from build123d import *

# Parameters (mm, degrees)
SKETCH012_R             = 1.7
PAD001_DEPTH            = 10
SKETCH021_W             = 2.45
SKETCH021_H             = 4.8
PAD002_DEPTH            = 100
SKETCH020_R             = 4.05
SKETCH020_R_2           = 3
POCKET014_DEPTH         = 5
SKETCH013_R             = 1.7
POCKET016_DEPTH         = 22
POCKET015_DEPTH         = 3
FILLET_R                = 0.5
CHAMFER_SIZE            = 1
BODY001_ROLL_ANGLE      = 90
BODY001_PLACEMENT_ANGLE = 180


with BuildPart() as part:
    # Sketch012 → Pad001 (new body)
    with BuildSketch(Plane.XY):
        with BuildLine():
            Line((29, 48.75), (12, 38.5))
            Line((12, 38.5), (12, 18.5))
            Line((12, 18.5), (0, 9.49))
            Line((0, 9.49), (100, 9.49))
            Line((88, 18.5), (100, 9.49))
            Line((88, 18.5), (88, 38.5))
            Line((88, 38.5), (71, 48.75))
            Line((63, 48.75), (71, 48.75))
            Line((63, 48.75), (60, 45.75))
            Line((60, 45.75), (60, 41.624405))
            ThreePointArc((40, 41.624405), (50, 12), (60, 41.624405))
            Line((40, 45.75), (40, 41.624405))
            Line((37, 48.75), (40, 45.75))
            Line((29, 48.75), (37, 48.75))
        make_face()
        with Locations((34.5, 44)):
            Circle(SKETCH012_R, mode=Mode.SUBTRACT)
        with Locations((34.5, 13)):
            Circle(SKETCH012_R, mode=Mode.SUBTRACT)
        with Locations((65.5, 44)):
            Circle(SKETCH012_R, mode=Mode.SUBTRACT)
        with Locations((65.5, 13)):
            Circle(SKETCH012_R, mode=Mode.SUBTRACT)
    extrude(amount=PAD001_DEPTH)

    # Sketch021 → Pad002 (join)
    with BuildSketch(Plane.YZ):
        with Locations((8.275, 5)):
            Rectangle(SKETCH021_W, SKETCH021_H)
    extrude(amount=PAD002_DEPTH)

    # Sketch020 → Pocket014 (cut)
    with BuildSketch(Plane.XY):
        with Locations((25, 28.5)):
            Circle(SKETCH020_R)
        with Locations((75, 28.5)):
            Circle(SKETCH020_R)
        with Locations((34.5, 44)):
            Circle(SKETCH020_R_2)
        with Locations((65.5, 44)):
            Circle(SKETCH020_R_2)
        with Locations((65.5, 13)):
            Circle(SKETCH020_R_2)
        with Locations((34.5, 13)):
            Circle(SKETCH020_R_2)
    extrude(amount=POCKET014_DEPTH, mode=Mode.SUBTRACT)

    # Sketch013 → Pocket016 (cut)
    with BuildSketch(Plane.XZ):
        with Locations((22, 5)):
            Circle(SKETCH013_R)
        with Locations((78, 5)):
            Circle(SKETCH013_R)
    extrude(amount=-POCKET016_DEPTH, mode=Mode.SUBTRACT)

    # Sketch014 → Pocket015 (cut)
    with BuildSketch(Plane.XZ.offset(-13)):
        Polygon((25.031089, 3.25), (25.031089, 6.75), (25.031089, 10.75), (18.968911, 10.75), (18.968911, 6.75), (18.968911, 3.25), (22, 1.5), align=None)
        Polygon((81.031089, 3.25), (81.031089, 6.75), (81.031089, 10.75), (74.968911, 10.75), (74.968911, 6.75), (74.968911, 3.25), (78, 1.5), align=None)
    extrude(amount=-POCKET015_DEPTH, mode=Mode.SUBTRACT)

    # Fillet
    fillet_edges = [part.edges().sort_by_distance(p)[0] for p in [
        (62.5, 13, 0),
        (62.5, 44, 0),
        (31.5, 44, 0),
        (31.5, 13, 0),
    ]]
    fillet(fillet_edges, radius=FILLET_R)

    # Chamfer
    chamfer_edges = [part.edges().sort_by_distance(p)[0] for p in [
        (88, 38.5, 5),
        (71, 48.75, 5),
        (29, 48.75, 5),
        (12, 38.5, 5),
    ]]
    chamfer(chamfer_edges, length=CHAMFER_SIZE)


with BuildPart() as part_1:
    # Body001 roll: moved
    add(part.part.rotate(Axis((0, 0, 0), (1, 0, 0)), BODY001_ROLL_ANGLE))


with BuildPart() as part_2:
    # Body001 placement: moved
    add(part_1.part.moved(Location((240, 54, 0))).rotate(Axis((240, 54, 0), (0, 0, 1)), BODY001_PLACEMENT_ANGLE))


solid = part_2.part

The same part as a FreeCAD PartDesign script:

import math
import FreeCAD as App
import Part
import Sketcher
from FreeCAD import Vector
Q = App.Units.Quantity


def edges_at(feature, points):
    """Names of the edges that pass closest to the given points."""
    edges = feature.Shape.Edges
    near = lambda p: min(range(len(edges)), key=lambda i: edges[i].distToShape(Part.Vertex(*p))[0])
    return sorted({f"Edge{near(p) + 1}" for p in points})

doc = App.newDocument("Part")
body = doc.addObject("PartDesign::Body", "Body")

# Sketch on XY plane
sketch1 = body.newObject("Sketcher::SketchObject", "Sketch")
sketch1.AttachmentSupport = (doc.getObject("XY_Plane"), [""])
sketch1.MapMode = "FlatFace"
sketch1.addGeometry(Part.LineSegment(Vector(29, 48.8, 0), Vector(12, 38.5, 0)), False)
sketch1.addGeometry(Part.LineSegment(Vector(12, 38.5, 0), Vector(12, 18.5, 0)), False)
sketch1.addGeometry(Part.LineSegment(Vector(12, 18.5, 0), Vector(0, 9.5, 0)), False)
sketch1.addGeometry(Part.LineSegment(Vector(0, 9.5, 0), Vector(100, 9.5, 0)), False)
sketch1.addGeometry(Part.LineSegment(Vector(100, 9.5, 0), Vector(88, 18.5, 0)), False)
sketch1.addGeometry(Part.LineSegment(Vector(88, 18.5, 0), Vector(88, 38.5, 0)), False)
sketch1.addGeometry(Part.LineSegment(Vector(88, 38.5, 0), Vector(71, 48.8, 0)), False)
sketch1.addGeometry(Part.LineSegment(Vector(71, 48.8, 0), Vector(63, 48.8, 0)), False)
sketch1.addGeometry(Part.LineSegment(Vector(63, 48.8, 0), Vector(60, 45.8, 0)), False)
sketch1.addGeometry(Part.LineSegment(Vector(60, 45.8, 0), Vector(60, 41.6, 0)), False)
sketch1.addGeometry(Part.ArcOfCircle(Part.Circle(Vector(50, 28.5, 0), Vector(0, 0, 1), 16.5), math.radians(127), math.radians(413)), False)
sketch1.addGeometry(Part.LineSegment(Vector(40, 41.6, 0), Vector(40, 45.8, 0)), False)
sketch1.addGeometry(Part.LineSegment(Vector(40, 45.8, 0), Vector(37, 48.8, 0)), False)
sketch1.addGeometry(Part.LineSegment(Vector(37, 48.8, 0), Vector(29, 48.8, 0)), False)
sketch1.addGeometry(Part.Circle(Vector(34.5, 13, 0), Vector(0, 0, 1), 1.7), False)
sketch1.addGeometry(Part.Circle(Vector(65.5, 13, 0), Vector(0, 0, 1), 1.7), False)
sketch1.addGeometry(Part.Circle(Vector(34.5, 44, 0), Vector(0, 0, 1), 1.7), False)
sketch1.addGeometry(Part.Circle(Vector(65.5, 44, 0), Vector(0, 0, 1), 1.7), False)
sketch1.addConstraint(Sketcher.Constraint("Coincident", 0, 2, 1, 1))
sketch1.addConstraint(Sketcher.Constraint("Coincident", 1, 2, 2, 1))
sketch1.addConstraint(Sketcher.Constraint("Coincident", 2, 2, 3, 1))
sketch1.addConstraint(Sketcher.Constraint("Coincident", 3, 2, 4, 1))
sketch1.addConstraint(Sketcher.Constraint("Coincident", 4, 2, 5, 1))
sketch1.addConstraint(Sketcher.Constraint("Coincident", 5, 2, 6, 1))
sketch1.addConstraint(Sketcher.Constraint("Coincident", 6, 2, 7, 1))
sketch1.addConstraint(Sketcher.Constraint("Coincident", 7, 2, 8, 1))
sketch1.addConstraint(Sketcher.Constraint("Coincident", 8, 2, 9, 1))
sketch1.addConstraint(Sketcher.Constraint("Coincident", 9, 2, 10, 2))
sketch1.addConstraint(Sketcher.Constraint("Coincident", 10, 1, 11, 1))
sketch1.addConstraint(Sketcher.Constraint("Coincident", 11, 2, 12, 1))
sketch1.addConstraint(Sketcher.Constraint("Coincident", 12, 2, 13, 1))
sketch1.addConstraint(Sketcher.Constraint("Coincident", 13, 2, 0, 1))
sketch1.addConstraint(Sketcher.Constraint("Vertical", 1))
sketch1.addConstraint(Sketcher.Constraint("Horizontal", 3))
sketch1.addConstraint(Sketcher.Constraint("Vertical", 5))
sketch1.addConstraint(Sketcher.Constraint("Horizontal", 7))
sketch1.addConstraint(Sketcher.Constraint("Vertical", 9))
sketch1.addConstraint(Sketcher.Constraint("Vertical", 11))
sketch1.addConstraint(Sketcher.Constraint("Horizontal", 13))
sketch1.addConstraint(Sketcher.Constraint("Equal", 14, 15))
sketch1.addConstraint(Sketcher.Constraint("Equal", 15, 16))
sketch1.addConstraint(Sketcher.Constraint("Equal", 16, 17))
sketch1.addConstraint(Sketcher.Constraint("PointOnObject", 2, 2, -2))
sketch1.addConstraint(Sketcher.Constraint("Perpendicular", 8, 12))
sketch1.addConstraint(Sketcher.Constraint("Horizontal", 14, 3, 15, 3))
sketch1.addConstraint(Sketcher.Constraint("Horizontal", 16, 3, 17, 3))
sketch1.addConstraint(Sketcher.Constraint("Horizontal", 1, 2, 4, 2))
sketch1.addConstraint(Sketcher.Constraint("Horizontal", 0, 2, 5, 2))
sketch1.addConstraint(Sketcher.Constraint("Horizontal", 9, 2, 10, 1))
sketch1.addConstraint(Sketcher.Constraint("Horizontal", 8, 2, 11, 2))
sketch1.addConstraint(Sketcher.Constraint("Horizontal", 7, 2, 12, 2))
sketch1.addConstraint(Sketcher.Constraint("Vertical", 14, 3, 16, 3))
sketch1.addConstraint(Sketcher.Constraint("Vertical", 15, 3, 17, 3))
sketch1.addConstraint(Sketcher.Constraint("Equal", 7, 13))
sketch1.addConstraint(Sketcher.Constraint("Equal", 2, 4))
sketch1.addConstraint(Sketcher.Constraint("Equal", 0, 6))
sketch1.addConstraint(Sketcher.Constraint("Equal", 8, 12))
sketch1.addConstraint(Sketcher.Constraint("Diameter", 14, Q("3.4 mm")))
sketch1.addConstraint(Sketcher.Constraint("Radius", 10, Q("16.5 mm")))
sketch1.addConstraint(Sketcher.Constraint("DistanceX", 3, 1, 3, 2, Q("100 mm")))
sketch1.addConstraint(Sketcher.Constraint("DistanceX", 7, 2, 7, 1, Q("8 mm")))
sketch1.addConstraint(Sketcher.Constraint("DistanceY", 1, 2, 1, 1, Q("20 mm")))
sketch1.addConstraint(Sketcher.Constraint("DistanceY", -1, 1, 14, 3, Q("13 mm")))
sketch1.addConstraint(Sketcher.Constraint("DistanceY", -1, 1, 16, 3, Q("44 mm")))
sketch1.addConstraint(Sketcher.Constraint("DistanceX", -1, 1, 0, 2, Q("12 mm")))
sketch1.addConstraint(Sketcher.Constraint("DistanceX", -1, 1, 6, 2, Q("71 mm")))
sketch1.addConstraint(Sketcher.Constraint("DistanceX", -1, 1, 8, 2, Q("60 mm")))
sketch1.addConstraint(Sketcher.Constraint("DistanceX", 14, 3, 15, 3, Q("31 mm")))
sketch1.addConstraint(Sketcher.Constraint("DistanceY", 10, 3, 0, 2, Q("10 mm")))
sketch1.addConstraint(Sketcher.Constraint("DistanceY", -1, 1, 10, 3, Q("28.5 mm")))
sketch1.addConstraint(Sketcher.Constraint("DistanceX", -1, 1, 14, 3, Q("34.5 mm")))
sketch1.addConstraint(Sketcher.Constraint("DistanceY", -1, 1, 2, 2, Q("9.49 mm")))
sketch1.addConstraint(Sketcher.Constraint("DistanceY", -1, 1, 6, 2, Q("48.75 mm")))
pad1 = body.newObject("PartDesign::Pad", "Pad")
pad1.Profile = sketch1
pad1.Length = 10

# Sketch on YZ plane
sketch2 = body.newObject("Sketcher::SketchObject", "Sketch001")
sketch2.AttachmentSupport = (doc.getObject("YZ_Plane"), [""])
sketch2.MapMode = "FlatFace"
sketch2.addGeometry(Part.LineSegment(Vector(7, 7.4, 0), Vector(7, 2.6, 0)), False)
sketch2.addGeometry(Part.LineSegment(Vector(7, 2.6, 0), Vector(9.5, 2.6, 0)), False)
sketch2.addGeometry(Part.LineSegment(Vector(9.5, 2.6, 0), Vector(9.5, 7.4, 0)), False)
sketch2.addGeometry(Part.LineSegment(Vector(9.5, 7.4, 0), Vector(7, 7.4, 0)), False)
sketch2.addConstraint(Sketcher.Constraint("Coincident", 0, 2, 1, 1))
sketch2.addConstraint(Sketcher.Constraint("Coincident", 1, 2, 2, 1))
sketch2.addConstraint(Sketcher.Constraint("Coincident", 2, 2, 3, 1))
sketch2.addConstraint(Sketcher.Constraint("Coincident", 3, 2, 0, 1))
sketch2.addConstraint(Sketcher.Constraint("Vertical", 0))
sketch2.addConstraint(Sketcher.Constraint("Horizontal", 1))
sketch2.addConstraint(Sketcher.Constraint("Vertical", 2))
sketch2.addConstraint(Sketcher.Constraint("Horizontal", 3))
sketch2.addConstraint(Sketcher.Constraint("DistanceY", 0, 2, 0, 1, Q("4.8 mm")))
sketch2.addConstraint(Sketcher.Constraint("DistanceX", 1, 1, 1, 2, Q("2.45 mm")))
sketch2.addConstraint(Sketcher.Constraint("DistanceY", -1, 1, 0, 2, Q("2.6 mm")))
sketch2.addConstraint(Sketcher.Constraint("DistanceX", -1, 1, 1, 2, Q("9.5 mm")))
pad2 = body.newObject("PartDesign::Pad", "Pad001")
pad2.Profile = sketch2
pad2.Length = 100

# Sketch on XY plane
sketch3 = body.newObject("Sketcher::SketchObject", "Sketch002")
sketch3.AttachmentSupport = (doc.getObject("XY_Plane"), [""])
sketch3.MapMode = "FlatFace"
sketch3.addGeometry(Part.Circle(Vector(25, 28.5, 0), Vector(0, 0, 1), 4), False)
sketch3.addGeometry(Part.Circle(Vector(75, 28.5, 0), Vector(0, 0, 1), 4), False)
sketch3.addGeometry(Part.Circle(Vector(34.5, 44, 0), Vector(0, 0, 1), 3), False)
sketch3.addGeometry(Part.Circle(Vector(65.5, 44, 0), Vector(0, 0, 1), 3), False)
sketch3.addGeometry(Part.Circle(Vector(65.5, 13, 0), Vector(0, 0, 1), 3), False)
sketch3.addGeometry(Part.Circle(Vector(34.5, 13, 0), Vector(0, 0, 1), 3), False)
sketch3.addConstraint(Sketcher.Constraint("Equal", 0, 1))
sketch3.addConstraint(Sketcher.Constraint("Equal", 2, 3))
sketch3.addConstraint(Sketcher.Constraint("Equal", 3, 4))
sketch3.addConstraint(Sketcher.Constraint("Equal", 4, 5))
sketch3.addConstraint(Sketcher.Constraint("Horizontal", 0, 3, 1, 3))
sketch3.addConstraint(Sketcher.Constraint("Horizontal", 2, 3, 3, 3))
sketch3.addConstraint(Sketcher.Constraint("Horizontal", 4, 3, 5, 3))
sketch3.addConstraint(Sketcher.Constraint("Vertical", 3, 3, 4, 3))
sketch3.addConstraint(Sketcher.Constraint("Vertical", 2, 3, 5, 3))
sketch3.addConstraint(Sketcher.Constraint("Diameter", 2, Q("6 mm")))
sketch3.addConstraint(Sketcher.Constraint("Diameter", 0, Q("8.1 mm")))
sketch3.addConstraint(Sketcher.Constraint("DistanceX", -1, 1, 0, 3, Q("25 mm")))
sketch3.addConstraint(Sketcher.Constraint("DistanceX", -1, 1, 1, 3, Q("75 mm")))
sketch3.addConstraint(Sketcher.Constraint("DistanceY", -1, 1, 2, 3, Q("44 mm")))
sketch3.addConstraint(Sketcher.Constraint("DistanceY", -1, 1, 4, 3, Q("13 mm")))
sketch3.addConstraint(Sketcher.Constraint("DistanceX", 2, 3, 3, 3, Q("31 mm")))
sketch3.addConstraint(Sketcher.Constraint("DistanceY", -1, 1, 0, 3, Q("28.5 mm")))
sketch3.addConstraint(Sketcher.Constraint("DistanceX", -1, 1, 2, 3, Q("34.5 mm")))
pocket1 = body.newObject("PartDesign::Pocket", "Pocket")
pocket1.Profile = sketch3
pocket1.Length = 5
pocket1.Reversed = True

# Sketch on XZ plane
sketch4 = body.newObject("Sketcher::SketchObject", "Sketch003")
sketch4.AttachmentSupport = (doc.getObject("XZ_Plane"), [""])
sketch4.MapMode = "FlatFace"
sketch4.addGeometry(Part.Circle(Vector(22, 5, 0), Vector(0, 0, 1), 1.7), False)
sketch4.addGeometry(Part.Circle(Vector(78, 5, 0), Vector(0, 0, 1), 1.7), False)
sketch4.addConstraint(Sketcher.Constraint("Equal", 0, 1))
sketch4.addConstraint(Sketcher.Constraint("Horizontal", 0, 3, 1, 3))
sketch4.addConstraint(Sketcher.Constraint("Diameter", 0, Q("3.4 mm")))
sketch4.addConstraint(Sketcher.Constraint("DistanceX", -1, 1, 0, 3, Q("22 mm")))
sketch4.addConstraint(Sketcher.Constraint("DistanceY", -1, 1, 0, 3, Q("5 mm")))
sketch4.addConstraint(Sketcher.Constraint("DistanceX", -1, 1, 1, 3, Q("78 mm")))
pocket2 = body.newObject("PartDesign::Pocket", "Pocket001")
pocket2.Profile = sketch4
pocket2.Length = 22

# Sketch on XZ plane
sketch5 = body.newObject("Sketcher::SketchObject", "Sketch004")
sketch5.AttachmentSupport = (doc.getObject("XZ_Plane"), [""])
sketch5.MapMode = "FlatFace"
sketch5.AttachmentOffset = App.Placement(Vector(0, 0, -13), App.Rotation())
sketch5.addGeometry(Part.LineSegment(Vector(25, 3.2, 0), Vector(25, 10.8, 0)), False)
sketch5.addGeometry(Part.LineSegment(Vector(25, 10.8, 0), Vector(19, 10.8, 0)), False)
sketch5.addGeometry(Part.LineSegment(Vector(19, 10.8, 0), Vector(19, 3.2, 0)), False)
sketch5.addGeometry(Part.LineSegment(Vector(19, 3.2, 0), Vector(22, 1.5, 0)), False)
sketch5.addGeometry(Part.LineSegment(Vector(22, 1.5, 0), Vector(25, 3.2, 0)), False)
sketch5.addGeometry(Part.LineSegment(Vector(81, 3.2, 0), Vector(81, 10.8, 0)), False)
sketch5.addGeometry(Part.LineSegment(Vector(81, 10.8, 0), Vector(75, 10.8, 0)), False)
sketch5.addGeometry(Part.LineSegment(Vector(75, 10.8, 0), Vector(75, 3.2, 0)), False)
sketch5.addGeometry(Part.LineSegment(Vector(75, 3.2, 0), Vector(78, 1.5, 0)), False)
sketch5.addGeometry(Part.LineSegment(Vector(78, 1.5, 0), Vector(81, 3.2, 0)), False)
sketch5.addConstraint(Sketcher.Constraint("Coincident", 0, 2, 1, 1))
sketch5.addConstraint(Sketcher.Constraint("Coincident", 1, 2, 2, 1))
sketch5.addConstraint(Sketcher.Constraint("Coincident", 2, 2, 3, 1))
sketch5.addConstraint(Sketcher.Constraint("Coincident", 3, 2, 4, 1))
sketch5.addConstraint(Sketcher.Constraint("Coincident", 4, 2, 0, 1))
sketch5.addConstraint(Sketcher.Constraint("Coincident", 5, 2, 6, 1))
sketch5.addConstraint(Sketcher.Constraint("Coincident", 6, 2, 7, 1))
sketch5.addConstraint(Sketcher.Constraint("Coincident", 7, 2, 8, 1))
sketch5.addConstraint(Sketcher.Constraint("Coincident", 8, 2, 9, 1))
sketch5.addConstraint(Sketcher.Constraint("Coincident", 9, 2, 5, 1))
sketch5.addConstraint(Sketcher.Constraint("Vertical", 0))
sketch5.addConstraint(Sketcher.Constraint("Horizontal", 1))
sketch5.addConstraint(Sketcher.Constraint("Vertical", 2))
sketch5.addConstraint(Sketcher.Constraint("Vertical", 5))
sketch5.addConstraint(Sketcher.Constraint("Horizontal", 6))
sketch5.addConstraint(Sketcher.Constraint("Vertical", 7))
sketch5.addConstraint(Sketcher.Constraint("Parallel", 3, 8))
sketch5.addConstraint(Sketcher.Constraint("Parallel", 4, 9))
sketch5.addConstraint(Sketcher.Constraint("Horizontal", 2, 2, 4, 2))
sketch5.addConstraint(Sketcher.Constraint("Horizontal", 1, 2, 5, 2))
sketch5.addConstraint(Sketcher.Constraint("Horizontal", 4, 2, 7, 2))
sketch5.addConstraint(Sketcher.Constraint("Horizontal", 3, 2, 8, 2))
sketch5.addConstraint(Sketcher.Constraint("Horizontal", 7, 2, 9, 2))
sketch5.addConstraint(Sketcher.Constraint("Equal", 3, 4))
sketch5.addConstraint(Sketcher.Constraint("Angle", 3, Q("-29.999999 deg")))
sketch5.addConstraint(Sketcher.Constraint("DistanceY", 0, 1, 0, 2, Q("7.5 mm")))
sketch5.addConstraint(Sketcher.Constraint("DistanceX", -1, 1, 3, 2, Q("22 mm")))
sketch5.addConstraint(Sketcher.Constraint("DistanceX", -1, 1, 8, 2, Q("78 mm")))
sketch5.addConstraint(Sketcher.Constraint("Distance", 3, Q("3.5 mm")))
sketch5.addConstraint(Sketcher.Constraint("DistanceY", -1, 1, 3, 2, Q("1.5 mm")))
pocket3 = body.newObject("PartDesign::Pocket", "Pocket002")
pocket3.Profile = sketch5
pocket3.Length = 3
doc.recompute()

fillet = body.newObject("PartDesign::Fillet", "Fillet")
fillet.Base = (pocket3, edges_at(pocket3, [
    (62.5, 13, 0),
    (62.5, 44, 0),
    (31.5, 44, 0),
    (31.5, 13, 0),
]))
fillet.Radius = 0.5
doc.recompute()

chamfer = body.newObject("PartDesign::Chamfer", "Chamfer")
chamfer.Base = (fillet, edges_at(fillet, [
    (88, 38.5, 5),
    (71, 48.75, 5),
    (29, 48.75, 5),
    (12, 38.5, 5),
]))
chamfer.Size = 1
body2 = doc.addObject("PartDesign::Body", "Body001")
doc.recompute()

body.Placement = App.Placement(Vector(0, 0, 0), App.Rotation(Vector(1, 0, 0), 90))
boolean = body2.newObject("PartDesign::Boolean", "Boolean")
boolean.Type = "Fuse"
boolean.addObjects([body])
body3 = doc.addObject("PartDesign::Body", "Body002")
doc.recompute()

body2.Placement = App.Placement(Vector(240, 54, 0), App.Rotation(Vector(0, 0, 1), 180))
boolean2 = body3.newObject("PartDesign::Boolean", "Boolean001")
boolean2.Type = "Fuse"
boolean2.addObjects([body2])

doc.recompute()
